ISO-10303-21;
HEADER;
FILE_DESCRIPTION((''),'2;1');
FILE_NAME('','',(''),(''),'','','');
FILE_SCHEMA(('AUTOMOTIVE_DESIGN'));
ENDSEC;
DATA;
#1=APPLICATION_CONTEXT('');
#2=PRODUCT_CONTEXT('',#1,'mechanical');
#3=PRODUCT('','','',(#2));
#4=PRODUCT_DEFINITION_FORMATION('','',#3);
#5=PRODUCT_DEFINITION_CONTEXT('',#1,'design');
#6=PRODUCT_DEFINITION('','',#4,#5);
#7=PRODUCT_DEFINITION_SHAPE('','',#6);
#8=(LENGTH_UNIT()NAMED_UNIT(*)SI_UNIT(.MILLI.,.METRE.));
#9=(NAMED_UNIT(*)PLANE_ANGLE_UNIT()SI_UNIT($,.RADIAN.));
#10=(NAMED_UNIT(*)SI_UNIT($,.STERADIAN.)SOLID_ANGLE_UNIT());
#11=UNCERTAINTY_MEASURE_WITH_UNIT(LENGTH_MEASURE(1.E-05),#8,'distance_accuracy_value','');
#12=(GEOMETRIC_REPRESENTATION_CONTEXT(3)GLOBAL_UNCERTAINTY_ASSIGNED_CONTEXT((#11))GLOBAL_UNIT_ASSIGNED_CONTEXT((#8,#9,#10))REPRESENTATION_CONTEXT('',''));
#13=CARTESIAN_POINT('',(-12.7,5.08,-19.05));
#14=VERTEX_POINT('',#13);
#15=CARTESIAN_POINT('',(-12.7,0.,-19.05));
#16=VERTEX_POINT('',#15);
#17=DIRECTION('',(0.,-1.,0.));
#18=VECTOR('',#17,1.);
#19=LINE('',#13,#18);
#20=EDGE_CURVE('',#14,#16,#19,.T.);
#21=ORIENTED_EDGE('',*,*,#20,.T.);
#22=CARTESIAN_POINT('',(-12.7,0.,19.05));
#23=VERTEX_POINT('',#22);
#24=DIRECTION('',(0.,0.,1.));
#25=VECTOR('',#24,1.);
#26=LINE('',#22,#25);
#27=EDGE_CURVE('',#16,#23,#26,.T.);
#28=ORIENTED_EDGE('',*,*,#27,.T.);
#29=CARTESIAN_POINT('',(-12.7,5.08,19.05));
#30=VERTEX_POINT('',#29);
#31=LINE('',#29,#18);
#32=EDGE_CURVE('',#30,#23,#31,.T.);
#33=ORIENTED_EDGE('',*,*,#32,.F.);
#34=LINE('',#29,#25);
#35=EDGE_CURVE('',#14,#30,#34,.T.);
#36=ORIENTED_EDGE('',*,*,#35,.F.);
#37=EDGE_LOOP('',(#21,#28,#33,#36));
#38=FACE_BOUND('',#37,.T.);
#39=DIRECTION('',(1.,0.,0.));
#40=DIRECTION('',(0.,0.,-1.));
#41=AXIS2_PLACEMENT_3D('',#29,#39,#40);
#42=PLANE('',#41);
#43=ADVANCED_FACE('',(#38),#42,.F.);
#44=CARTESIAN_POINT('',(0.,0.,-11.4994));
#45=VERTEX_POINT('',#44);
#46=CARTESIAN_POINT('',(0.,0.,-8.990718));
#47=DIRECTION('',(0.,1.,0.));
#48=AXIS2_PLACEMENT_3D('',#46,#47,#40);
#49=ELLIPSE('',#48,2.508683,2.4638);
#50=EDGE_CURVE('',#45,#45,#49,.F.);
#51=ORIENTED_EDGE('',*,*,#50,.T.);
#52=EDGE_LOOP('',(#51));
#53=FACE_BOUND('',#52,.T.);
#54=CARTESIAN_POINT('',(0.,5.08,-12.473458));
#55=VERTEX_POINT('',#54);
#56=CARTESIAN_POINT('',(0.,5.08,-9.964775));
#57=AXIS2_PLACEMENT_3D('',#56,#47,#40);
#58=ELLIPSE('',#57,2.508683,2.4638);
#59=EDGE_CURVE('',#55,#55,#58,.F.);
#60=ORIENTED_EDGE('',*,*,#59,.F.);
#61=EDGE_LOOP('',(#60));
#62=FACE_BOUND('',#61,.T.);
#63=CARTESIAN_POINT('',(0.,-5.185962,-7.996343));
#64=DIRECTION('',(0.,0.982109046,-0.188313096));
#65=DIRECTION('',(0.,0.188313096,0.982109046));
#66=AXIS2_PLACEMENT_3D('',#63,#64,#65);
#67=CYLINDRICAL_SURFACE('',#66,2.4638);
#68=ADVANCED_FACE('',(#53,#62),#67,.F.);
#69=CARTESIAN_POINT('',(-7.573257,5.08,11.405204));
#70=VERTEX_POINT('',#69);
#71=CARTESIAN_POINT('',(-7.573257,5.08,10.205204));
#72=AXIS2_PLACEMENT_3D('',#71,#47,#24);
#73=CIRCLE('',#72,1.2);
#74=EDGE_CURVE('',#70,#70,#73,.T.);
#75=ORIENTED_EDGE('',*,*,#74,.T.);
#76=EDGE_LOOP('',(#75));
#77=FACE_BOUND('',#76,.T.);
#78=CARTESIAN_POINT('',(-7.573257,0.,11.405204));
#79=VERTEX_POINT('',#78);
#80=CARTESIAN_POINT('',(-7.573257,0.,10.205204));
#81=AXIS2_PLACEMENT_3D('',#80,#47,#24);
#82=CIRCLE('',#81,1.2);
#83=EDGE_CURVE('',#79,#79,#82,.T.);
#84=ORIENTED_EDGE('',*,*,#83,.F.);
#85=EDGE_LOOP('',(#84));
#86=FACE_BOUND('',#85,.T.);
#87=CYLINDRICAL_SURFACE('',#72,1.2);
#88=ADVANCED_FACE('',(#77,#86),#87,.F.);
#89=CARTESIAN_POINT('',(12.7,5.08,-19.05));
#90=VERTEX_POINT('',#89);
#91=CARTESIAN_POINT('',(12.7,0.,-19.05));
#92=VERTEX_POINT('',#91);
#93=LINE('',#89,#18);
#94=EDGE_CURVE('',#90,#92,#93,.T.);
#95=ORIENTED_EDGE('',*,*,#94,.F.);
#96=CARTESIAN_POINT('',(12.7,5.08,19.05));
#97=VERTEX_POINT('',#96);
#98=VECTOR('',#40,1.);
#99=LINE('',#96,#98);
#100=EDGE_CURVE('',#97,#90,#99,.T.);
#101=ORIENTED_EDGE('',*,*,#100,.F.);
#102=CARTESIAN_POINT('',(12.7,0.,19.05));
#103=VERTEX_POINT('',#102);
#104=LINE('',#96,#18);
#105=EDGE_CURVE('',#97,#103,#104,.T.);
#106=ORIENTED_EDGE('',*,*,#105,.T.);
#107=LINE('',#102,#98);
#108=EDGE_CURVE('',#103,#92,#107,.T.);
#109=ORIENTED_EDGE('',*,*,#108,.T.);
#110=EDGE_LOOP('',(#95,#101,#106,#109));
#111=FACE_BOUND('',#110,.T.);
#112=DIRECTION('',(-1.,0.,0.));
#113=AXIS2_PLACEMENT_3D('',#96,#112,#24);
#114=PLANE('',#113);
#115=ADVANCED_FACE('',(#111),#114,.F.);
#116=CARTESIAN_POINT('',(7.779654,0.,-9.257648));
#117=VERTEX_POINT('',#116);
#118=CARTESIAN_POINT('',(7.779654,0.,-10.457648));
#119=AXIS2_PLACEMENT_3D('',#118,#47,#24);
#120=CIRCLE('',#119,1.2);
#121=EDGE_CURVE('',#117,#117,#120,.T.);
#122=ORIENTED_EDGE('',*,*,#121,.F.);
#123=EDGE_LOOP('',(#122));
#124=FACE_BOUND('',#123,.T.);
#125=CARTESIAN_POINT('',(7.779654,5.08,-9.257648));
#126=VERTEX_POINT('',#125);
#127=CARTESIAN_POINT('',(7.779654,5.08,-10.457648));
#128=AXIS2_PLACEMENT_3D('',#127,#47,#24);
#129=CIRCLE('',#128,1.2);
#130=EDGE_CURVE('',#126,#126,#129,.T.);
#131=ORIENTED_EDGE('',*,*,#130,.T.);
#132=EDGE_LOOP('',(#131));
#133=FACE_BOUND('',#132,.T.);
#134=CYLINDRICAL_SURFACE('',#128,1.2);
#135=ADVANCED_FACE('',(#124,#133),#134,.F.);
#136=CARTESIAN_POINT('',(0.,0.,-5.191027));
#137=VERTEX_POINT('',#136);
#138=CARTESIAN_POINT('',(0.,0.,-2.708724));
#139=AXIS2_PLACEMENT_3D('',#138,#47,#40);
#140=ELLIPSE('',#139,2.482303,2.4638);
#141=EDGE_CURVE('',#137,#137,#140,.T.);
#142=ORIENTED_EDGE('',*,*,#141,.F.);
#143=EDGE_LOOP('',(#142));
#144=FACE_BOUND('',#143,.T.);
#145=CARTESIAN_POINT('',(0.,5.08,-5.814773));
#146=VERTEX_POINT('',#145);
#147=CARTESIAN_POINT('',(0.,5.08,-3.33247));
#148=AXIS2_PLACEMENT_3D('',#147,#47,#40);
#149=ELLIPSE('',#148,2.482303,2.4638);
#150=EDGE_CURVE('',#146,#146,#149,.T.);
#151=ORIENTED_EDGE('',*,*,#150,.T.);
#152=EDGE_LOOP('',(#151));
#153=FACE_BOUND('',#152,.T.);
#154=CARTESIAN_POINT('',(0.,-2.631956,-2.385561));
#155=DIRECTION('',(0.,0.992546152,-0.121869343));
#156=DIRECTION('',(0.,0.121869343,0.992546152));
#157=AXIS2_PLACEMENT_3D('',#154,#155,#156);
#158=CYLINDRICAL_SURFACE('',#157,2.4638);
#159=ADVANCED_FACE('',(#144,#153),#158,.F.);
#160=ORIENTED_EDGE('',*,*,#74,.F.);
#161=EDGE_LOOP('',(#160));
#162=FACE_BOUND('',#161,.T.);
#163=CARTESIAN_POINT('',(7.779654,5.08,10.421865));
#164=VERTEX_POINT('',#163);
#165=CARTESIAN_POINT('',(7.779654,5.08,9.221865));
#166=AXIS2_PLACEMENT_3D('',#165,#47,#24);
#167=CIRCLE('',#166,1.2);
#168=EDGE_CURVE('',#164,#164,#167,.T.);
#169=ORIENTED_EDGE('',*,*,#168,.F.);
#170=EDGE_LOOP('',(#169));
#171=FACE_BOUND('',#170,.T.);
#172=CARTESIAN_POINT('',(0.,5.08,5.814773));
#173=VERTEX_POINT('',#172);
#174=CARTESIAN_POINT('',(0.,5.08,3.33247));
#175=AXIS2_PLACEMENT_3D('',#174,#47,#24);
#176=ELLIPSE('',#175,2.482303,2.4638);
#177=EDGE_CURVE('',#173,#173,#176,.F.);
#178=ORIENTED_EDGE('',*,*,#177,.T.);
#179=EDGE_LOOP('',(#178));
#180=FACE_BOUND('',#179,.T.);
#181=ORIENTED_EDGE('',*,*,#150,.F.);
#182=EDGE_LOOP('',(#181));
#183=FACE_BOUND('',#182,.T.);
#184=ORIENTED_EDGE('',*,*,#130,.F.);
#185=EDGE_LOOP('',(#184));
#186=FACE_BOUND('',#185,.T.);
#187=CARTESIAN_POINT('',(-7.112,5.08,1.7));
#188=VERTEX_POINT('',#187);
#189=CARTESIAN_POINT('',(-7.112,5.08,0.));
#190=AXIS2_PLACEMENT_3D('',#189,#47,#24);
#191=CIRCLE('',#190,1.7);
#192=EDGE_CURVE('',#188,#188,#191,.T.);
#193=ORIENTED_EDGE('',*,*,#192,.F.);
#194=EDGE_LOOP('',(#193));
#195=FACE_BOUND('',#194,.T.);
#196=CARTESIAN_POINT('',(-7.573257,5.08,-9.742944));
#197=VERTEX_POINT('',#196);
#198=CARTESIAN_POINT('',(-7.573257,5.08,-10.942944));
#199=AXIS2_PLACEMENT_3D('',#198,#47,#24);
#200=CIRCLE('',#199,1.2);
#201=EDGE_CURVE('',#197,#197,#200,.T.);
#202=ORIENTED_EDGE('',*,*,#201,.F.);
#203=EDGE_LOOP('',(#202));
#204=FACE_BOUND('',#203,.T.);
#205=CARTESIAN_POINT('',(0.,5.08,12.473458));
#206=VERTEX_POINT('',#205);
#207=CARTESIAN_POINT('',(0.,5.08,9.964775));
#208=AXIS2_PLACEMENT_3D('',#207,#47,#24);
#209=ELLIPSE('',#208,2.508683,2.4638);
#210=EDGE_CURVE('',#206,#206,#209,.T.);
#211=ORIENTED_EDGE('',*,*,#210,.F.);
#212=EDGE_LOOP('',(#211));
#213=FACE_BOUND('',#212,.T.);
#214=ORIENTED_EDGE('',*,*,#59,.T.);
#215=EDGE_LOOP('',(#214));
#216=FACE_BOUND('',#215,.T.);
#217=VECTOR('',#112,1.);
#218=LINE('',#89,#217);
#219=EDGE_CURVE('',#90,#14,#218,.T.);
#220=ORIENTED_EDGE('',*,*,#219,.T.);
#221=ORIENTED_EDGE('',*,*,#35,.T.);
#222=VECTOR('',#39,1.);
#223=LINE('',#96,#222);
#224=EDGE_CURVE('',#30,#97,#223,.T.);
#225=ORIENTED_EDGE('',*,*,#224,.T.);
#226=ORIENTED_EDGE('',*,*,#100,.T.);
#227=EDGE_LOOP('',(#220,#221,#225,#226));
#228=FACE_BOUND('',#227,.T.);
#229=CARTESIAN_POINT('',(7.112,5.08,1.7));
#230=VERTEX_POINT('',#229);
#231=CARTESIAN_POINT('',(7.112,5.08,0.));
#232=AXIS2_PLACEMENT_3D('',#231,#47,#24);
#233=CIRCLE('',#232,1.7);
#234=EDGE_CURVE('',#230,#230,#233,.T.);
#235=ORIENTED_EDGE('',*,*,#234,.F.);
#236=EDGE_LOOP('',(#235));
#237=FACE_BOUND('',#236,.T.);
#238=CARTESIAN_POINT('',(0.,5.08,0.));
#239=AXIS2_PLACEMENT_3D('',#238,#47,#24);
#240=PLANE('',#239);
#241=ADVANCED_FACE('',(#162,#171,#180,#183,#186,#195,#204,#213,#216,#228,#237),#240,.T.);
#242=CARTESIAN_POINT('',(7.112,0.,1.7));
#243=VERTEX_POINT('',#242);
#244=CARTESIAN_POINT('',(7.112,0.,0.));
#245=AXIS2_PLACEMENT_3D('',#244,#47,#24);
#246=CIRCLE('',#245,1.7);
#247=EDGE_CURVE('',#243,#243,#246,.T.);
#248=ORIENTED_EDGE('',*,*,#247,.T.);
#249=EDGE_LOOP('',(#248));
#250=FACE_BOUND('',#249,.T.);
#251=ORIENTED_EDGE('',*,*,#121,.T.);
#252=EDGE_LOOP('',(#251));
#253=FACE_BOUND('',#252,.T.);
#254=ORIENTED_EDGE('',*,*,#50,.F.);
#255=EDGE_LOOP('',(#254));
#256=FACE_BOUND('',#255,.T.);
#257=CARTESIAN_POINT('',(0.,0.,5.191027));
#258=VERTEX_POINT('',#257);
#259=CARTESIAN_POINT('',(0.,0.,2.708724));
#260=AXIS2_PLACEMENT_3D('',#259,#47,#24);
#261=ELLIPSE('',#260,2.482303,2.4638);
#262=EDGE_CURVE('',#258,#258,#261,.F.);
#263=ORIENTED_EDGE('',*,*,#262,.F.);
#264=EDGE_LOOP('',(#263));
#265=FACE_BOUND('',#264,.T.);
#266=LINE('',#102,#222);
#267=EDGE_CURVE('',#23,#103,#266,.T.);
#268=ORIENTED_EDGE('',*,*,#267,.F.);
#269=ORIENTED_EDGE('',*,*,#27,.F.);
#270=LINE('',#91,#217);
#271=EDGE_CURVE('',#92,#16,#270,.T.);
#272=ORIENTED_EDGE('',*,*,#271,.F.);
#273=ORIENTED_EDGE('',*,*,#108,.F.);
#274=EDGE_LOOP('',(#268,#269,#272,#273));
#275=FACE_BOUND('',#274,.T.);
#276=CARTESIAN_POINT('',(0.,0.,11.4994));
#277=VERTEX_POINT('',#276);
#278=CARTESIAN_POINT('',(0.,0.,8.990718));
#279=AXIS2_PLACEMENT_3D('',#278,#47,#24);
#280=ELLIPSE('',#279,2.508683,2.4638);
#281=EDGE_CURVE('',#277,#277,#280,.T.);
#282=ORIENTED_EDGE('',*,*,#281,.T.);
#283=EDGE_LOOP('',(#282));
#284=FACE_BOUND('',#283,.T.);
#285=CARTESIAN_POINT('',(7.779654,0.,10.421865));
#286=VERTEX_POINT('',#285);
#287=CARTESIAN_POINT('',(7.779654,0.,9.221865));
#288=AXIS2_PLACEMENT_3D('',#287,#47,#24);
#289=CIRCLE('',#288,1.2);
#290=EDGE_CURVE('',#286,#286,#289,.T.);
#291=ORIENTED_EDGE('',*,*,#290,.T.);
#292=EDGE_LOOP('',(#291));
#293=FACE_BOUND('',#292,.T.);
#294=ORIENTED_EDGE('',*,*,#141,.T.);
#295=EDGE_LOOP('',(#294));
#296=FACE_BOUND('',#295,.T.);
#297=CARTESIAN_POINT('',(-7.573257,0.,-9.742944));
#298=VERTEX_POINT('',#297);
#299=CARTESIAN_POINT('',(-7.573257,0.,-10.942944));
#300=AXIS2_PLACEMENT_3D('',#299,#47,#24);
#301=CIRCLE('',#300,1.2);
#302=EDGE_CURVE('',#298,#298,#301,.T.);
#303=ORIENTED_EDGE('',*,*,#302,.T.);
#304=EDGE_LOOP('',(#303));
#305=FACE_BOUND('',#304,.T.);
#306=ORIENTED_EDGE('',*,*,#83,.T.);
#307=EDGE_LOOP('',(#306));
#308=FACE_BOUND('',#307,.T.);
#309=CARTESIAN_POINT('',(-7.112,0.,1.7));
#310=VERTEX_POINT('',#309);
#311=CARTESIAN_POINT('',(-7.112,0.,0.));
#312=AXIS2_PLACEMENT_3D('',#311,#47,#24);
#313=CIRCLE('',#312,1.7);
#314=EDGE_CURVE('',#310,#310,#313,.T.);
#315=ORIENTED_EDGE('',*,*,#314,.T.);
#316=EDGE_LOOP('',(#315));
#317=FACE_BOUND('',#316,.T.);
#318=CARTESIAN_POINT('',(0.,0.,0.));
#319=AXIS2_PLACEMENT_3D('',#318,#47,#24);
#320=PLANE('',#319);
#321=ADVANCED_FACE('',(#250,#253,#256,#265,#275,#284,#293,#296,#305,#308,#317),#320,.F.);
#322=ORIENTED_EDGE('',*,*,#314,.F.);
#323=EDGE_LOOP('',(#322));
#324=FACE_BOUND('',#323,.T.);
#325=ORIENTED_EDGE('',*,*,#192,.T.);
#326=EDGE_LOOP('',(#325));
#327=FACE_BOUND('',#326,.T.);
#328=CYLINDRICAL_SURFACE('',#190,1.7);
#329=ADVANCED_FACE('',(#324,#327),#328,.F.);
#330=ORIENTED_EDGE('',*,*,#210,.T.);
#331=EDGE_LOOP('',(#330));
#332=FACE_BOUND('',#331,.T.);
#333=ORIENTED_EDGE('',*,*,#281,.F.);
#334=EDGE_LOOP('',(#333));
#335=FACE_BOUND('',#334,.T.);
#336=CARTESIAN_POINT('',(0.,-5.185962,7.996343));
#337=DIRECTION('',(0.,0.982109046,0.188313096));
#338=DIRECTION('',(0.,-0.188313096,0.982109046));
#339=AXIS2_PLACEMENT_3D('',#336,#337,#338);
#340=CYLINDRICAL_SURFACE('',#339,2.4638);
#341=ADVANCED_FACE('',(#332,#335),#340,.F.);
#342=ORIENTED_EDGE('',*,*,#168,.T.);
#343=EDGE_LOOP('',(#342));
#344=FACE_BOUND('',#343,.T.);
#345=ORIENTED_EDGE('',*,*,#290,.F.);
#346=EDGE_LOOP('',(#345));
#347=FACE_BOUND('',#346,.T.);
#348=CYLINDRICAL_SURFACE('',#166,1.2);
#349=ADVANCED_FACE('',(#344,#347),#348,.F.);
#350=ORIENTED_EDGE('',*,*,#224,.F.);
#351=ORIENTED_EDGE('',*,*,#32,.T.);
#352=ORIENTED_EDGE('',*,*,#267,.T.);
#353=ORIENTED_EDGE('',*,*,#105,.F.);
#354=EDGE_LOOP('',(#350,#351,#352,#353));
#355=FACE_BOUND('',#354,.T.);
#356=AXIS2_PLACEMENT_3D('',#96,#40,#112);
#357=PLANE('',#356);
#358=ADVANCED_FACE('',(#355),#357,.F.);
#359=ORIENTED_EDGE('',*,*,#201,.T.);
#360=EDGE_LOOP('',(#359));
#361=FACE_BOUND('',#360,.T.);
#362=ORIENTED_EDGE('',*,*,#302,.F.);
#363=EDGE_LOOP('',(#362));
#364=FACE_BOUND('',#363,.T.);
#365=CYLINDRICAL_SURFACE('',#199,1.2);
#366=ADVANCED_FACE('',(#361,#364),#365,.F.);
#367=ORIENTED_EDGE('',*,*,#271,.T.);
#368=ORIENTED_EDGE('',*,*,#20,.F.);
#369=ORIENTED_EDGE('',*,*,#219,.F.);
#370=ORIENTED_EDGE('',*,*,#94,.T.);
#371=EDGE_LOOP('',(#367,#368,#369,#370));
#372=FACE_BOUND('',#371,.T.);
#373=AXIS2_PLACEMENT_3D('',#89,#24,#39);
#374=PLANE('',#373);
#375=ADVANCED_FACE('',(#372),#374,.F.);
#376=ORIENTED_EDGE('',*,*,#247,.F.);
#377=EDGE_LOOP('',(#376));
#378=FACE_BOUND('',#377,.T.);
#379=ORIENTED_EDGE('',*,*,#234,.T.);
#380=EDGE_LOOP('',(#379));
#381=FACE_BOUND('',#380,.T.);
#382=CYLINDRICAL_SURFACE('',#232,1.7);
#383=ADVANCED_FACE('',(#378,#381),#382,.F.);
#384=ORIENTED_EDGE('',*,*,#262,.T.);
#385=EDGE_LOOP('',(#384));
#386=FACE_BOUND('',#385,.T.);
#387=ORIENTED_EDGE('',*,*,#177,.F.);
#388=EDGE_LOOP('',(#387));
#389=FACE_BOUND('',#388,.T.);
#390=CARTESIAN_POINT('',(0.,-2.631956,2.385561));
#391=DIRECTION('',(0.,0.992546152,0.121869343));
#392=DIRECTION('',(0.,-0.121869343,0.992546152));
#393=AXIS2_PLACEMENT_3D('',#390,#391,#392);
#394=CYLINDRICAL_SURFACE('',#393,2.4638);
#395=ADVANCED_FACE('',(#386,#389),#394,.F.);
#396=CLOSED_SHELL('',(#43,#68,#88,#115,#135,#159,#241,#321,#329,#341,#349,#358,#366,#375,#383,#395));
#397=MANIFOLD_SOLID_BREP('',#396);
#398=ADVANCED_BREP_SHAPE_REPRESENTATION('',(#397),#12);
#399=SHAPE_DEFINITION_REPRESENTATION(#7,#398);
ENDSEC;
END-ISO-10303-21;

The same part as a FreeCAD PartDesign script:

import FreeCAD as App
import Part
import Sketcher

V = App.Vector
Q = App.Units.Quantity

doc = App.newDocument("Part")
body = doc.addObject("PartDesign::Body", "Body")

# Sketch on XZ plane
sketch1 = doc.addObject("Sketcher::SketchObject", "Sketch")
body.addObject(sketch1)
sketch1.AttachmentSupport = (doc.XZ_Plane, [""])
sketch1.MapMode = "FlatFace"
sketch1.addGeometry(Part.LineSegment(V(-13, -19, 0), V(-13, 19, 0)), False)
sketch1.addGeometry(Part.LineSegment(V(-13, 19, 0), V(13, 19, 0)), False)
sketch1.addGeometry(Part.LineSegment(V(13, 19, 0), V(13, -19, 0)), False)
sketch1.addGeometry(Part.LineSegment(V(13, -19, 0), V(-13, -19, 0)), False)
sketch1.addConstraint(Sketcher.Constraint("Coincident", 0, 2, 1, 1))
sketch1.addConstraint(Sketcher.Constraint("Coincident", 1, 2, 2, 1))
sketch1.addConstraint(Sketcher.Constraint("Coincident", 2, 2, 3, 1))
sketch1.addConstraint(Sketcher.Constraint("Coincident", 3, 2, 0, 1))
sketch1.addConstraint(Sketcher.Constraint("Vertical", 0))
sketch1.addConstraint(Sketcher.Constraint("Horizontal", 1))
sketch1.addConstraint(Sketcher.Constraint("Vertical", 2))
sketch1.addConstraint(Sketcher.Constraint("Horizontal", 3))
sketch1.addConstraint(Sketcher.Constraint("Symmetric", 0, 2, 2, 2, -1, 1))
sketch1.addConstraint(Sketcher.Constraint("DistanceX", 1, 1, 1, 2, Q("1 in")))
sketch1.addConstraint(Sketcher.Constraint("DistanceY", 0, 1, 0, 2, Q("1.5 in")))
pad1 = doc.addObject("PartDesign::Pad", "Pad")
body.addObject(pad1)
pad1.Profile = sketch1
pad1.Length = Q("0.2 in")
pad1.Reversed = True

# Sketch on an angled plane
sketch2 = doc.addObject("Sketcher::SketchObject", "Sketch001")
body.addObject(sketch2)
sketch2.Placement = App.Placement(V(12.7, 7.849934, 4.696205), App.Rotation(V(-1, 0, 0), V(0, 0.121869343, -0.992546152), V(0, -0.992546152, -0.121869343), "ZXY"))
sketch2.addGeometry(Part.Circle(V(12.7, 1, 0), V(0, 0, 1), 2.5), False)
sketch2.addConstraint(Sketcher.Constraint("Diameter", 0, Q("0.194 in")))
sketch2.addConstraint(Sketcher.Constraint("DistanceX", -1, 1, 0, 3, Q("0.5 in")))
sketch2.addConstraint(Sketcher.Constraint("DistanceY", -1, 1, 0, 3, Q("0.04 in")))
pocket1 = doc.addObject("PartDesign::Pocket", "Pocket")
body.addObject(pocket1)
pocket1.Profile = sketch2
pocket1.Length = 11.685356
pocket1.Reversed = True

# Sketch on an angled plane
sketch3 = doc.addObject("Sketcher::SketchObject", "Sketch002")
body.addObject(sketch3)
sketch3.Placement = App.Placement(V(12.7, -6.74205, 10.801498), App.Rotation(V(1, 0, 0), V(0, 0.188313096, -0.982109046), V(0, 0.982109046, 0.188313096), "ZXY"))
sketch3.addGeometry(Part.Circle(V(-12.7, 3, 0), V(0, 0, 1), 2.5), False)
sketch3.addConstraint(Sketcher.Constraint("Diameter", 0, Q("0.194 in")))
sketch3.addConstraint(Sketcher.Constraint("DistanceX", 0, 3, -1, 1, Q("0.5 in")))
sketch3.addConstraint(Sketcher.Constraint("DistanceY", -1, 1, 0, 3, Q("0.12 in")))
pocket2 = doc.addObject("PartDesign::Pocket", "Pocket001")
body.addObject(pocket2)
pocket2.Profile = sketch3
pocket2.Length = 14.163843
pocket2.Reversed = True
doc.recompute()

mirrored = doc.addObject("PartDesign::Mirrored", "Mirrored")
body.addObject(mirrored)
mirrored.Originals = [pocket1, pocket2]
mirrored.MirrorPlane = (doc.XY_Plane, [""])
body.Tip = mirrored

# Sketch on XZ plane
sketch4 = doc.addObject("Sketcher::SketchObject", "Sketch003")
body.addObject(sketch4)
sketch4.AttachmentSupport = (doc.XZ_Plane, [""])
sketch4.MapMode = "FlatFace"
sketch4.AttachmentOffset = App.Placement(V(0, 0, -0.2 * 25.4), App.Rotation())
sketch4.addGeometry(Part.Circle(V(7.1, 0, 0), V(0, 0, 1), 1.7), False)
sketch4.addGeometry(Part.Circle(V(-7.1, 0, 0), V(0, 0, 1), 1.7), False)
sketch4.addConstraint(Sketcher.Constraint("Equal", 0, 1))
sketch4.addConstraint(Sketcher.Constraint("Symmetric", 0, 3, 1, 3, -1, 1))
sketch4.addConstraint(Sketcher.Constraint("PointOnObject", 0, 3, -1))
sketch4.addConstraint(Sketcher.Constraint("Diameter", 0, 3.4))
sketch4.addConstraint(Sketcher.Constraint("DistanceX", -1, 1, 0, 3, Q("0.28 in")))
doc.recompute()
hole = doc.addObject("PartDesign::Hole", "Hole")
body.addObject(hole)
hole.Profile = sketch4
hole.ThreadType = "None"
hole.Diameter = 3.4
hole.DepthType = "Dimension"
hole.Depth = Q("1 in")
hole.DrillPoint = "Angled"
hole.DrillPointAngle = 118
hole.Reversed = True

# Sketch on XZ plane
sketch5 = doc.addObject("Sketcher::SketchObject", "Sketch004")
body.addObject(sketch5)
sketch5.AttachmentSupport = (doc.XZ_Plane, [""])
sketch5.MapMode = "FlatFace"
sketch5.AttachmentOffset = App.Placement(V(0, 0, -0.2 * 25.4), App.Rotation())
sketch5.addGeometry(Part.Circle(V(-7.6, 10.2, 0), V(0, 0, 1), 1.2), False)
sketch5.addGeometry(Part.Circle(V(-7.6, -10.9, 0), V(0, 0, 1), 1.2), False)
sketch5.addConstraint(Sketcher.Constraint("Equal", 0, 1))
sketch5.addConstraint(Sketcher.Constraint("Vertical", 0, 3, 1, 3))
sketch5.addConstraint(Sketcher.Constraint("Diameter", 0, 2.4))
sketch5.addConstraint(Sketcher.Constraint("DistanceX", 0, 3, -1, 1, 7.573257))
sketch5.addConstraint(Sketcher.Constraint("DistanceY", -1, 1, 0, 3, 10.205204))
sketch5.addConstraint(Sketcher.Constraint("DistanceY", 1, 3, -1, 1, 10.942944))
doc.recompute()
hole2 = doc.addObject("PartDesign::Hole", "Hole001")
body.addObject(hole2)
hole2.Profile = sketch5
hole2.ThreadType = "None"
hole2.Diameter = 2.4
hole2.DepthType = "Dimension"
hole2.Depth = Q("1 in")
hole2.DrillPoint = "Angled"
hole2.DrillPointAngle = 118
hole2.Reversed = True

# Sketch on XZ plane
sketch6 = doc.addObject("Sketcher::SketchObject", "Sketch005")
body.addObject(sketch6)
sketch6.AttachmentSupport = (doc.XZ_Plane, [""])
sketch6.MapMode = "FlatFace"
sketch6.AttachmentOffset = App.Placement(V(0, 0, -0.2 * 25.4), App.Rotation())
sketch6.addGeometry(Part.Circle(V(7.8, 9.2, 0), V(0, 0, 1), 1.2), False)
sketch6.addGeometry(Part.Circle(V(7.8, -10.5, 0), V(0, 0, 1), 1.2), False)
sketch6.addConstraint(Sketcher.Constraint("Equal", 0, 1))
sketch6.addConstraint(Sketcher.Constraint("Vertical", 0, 3, 1, 3))
sketch6.addConstraint(Sketcher.Constraint("Diameter", 0, 2.4))
sketch6.addConstraint(Sketcher.Constraint("DistanceX", -1, 1, 0, 3, 7.779654))
sketch6.addConstraint(Sketcher.Constraint("DistanceY", -1, 1, 0, 3, 9.221865))
sketch6.addConstraint(Sketcher.Constraint("DistanceY", 1, 3, -1, 1, 10.457648))
doc.recompute()
hole3 = doc.addObject("PartDesign::Hole", "Hole002")
body.addObject(hole3)
hole3.Profile = sketch6
hole3.ThreadType = "None"
hole3.Diameter = 2.4
hole3.DepthType = "Dimension"
hole3.Depth = Q("1 in")
hole3.DrillPoint = "Angled"
hole3.DrillPointAngle = 118
hole3.Reversed = True

doc.recompute()
